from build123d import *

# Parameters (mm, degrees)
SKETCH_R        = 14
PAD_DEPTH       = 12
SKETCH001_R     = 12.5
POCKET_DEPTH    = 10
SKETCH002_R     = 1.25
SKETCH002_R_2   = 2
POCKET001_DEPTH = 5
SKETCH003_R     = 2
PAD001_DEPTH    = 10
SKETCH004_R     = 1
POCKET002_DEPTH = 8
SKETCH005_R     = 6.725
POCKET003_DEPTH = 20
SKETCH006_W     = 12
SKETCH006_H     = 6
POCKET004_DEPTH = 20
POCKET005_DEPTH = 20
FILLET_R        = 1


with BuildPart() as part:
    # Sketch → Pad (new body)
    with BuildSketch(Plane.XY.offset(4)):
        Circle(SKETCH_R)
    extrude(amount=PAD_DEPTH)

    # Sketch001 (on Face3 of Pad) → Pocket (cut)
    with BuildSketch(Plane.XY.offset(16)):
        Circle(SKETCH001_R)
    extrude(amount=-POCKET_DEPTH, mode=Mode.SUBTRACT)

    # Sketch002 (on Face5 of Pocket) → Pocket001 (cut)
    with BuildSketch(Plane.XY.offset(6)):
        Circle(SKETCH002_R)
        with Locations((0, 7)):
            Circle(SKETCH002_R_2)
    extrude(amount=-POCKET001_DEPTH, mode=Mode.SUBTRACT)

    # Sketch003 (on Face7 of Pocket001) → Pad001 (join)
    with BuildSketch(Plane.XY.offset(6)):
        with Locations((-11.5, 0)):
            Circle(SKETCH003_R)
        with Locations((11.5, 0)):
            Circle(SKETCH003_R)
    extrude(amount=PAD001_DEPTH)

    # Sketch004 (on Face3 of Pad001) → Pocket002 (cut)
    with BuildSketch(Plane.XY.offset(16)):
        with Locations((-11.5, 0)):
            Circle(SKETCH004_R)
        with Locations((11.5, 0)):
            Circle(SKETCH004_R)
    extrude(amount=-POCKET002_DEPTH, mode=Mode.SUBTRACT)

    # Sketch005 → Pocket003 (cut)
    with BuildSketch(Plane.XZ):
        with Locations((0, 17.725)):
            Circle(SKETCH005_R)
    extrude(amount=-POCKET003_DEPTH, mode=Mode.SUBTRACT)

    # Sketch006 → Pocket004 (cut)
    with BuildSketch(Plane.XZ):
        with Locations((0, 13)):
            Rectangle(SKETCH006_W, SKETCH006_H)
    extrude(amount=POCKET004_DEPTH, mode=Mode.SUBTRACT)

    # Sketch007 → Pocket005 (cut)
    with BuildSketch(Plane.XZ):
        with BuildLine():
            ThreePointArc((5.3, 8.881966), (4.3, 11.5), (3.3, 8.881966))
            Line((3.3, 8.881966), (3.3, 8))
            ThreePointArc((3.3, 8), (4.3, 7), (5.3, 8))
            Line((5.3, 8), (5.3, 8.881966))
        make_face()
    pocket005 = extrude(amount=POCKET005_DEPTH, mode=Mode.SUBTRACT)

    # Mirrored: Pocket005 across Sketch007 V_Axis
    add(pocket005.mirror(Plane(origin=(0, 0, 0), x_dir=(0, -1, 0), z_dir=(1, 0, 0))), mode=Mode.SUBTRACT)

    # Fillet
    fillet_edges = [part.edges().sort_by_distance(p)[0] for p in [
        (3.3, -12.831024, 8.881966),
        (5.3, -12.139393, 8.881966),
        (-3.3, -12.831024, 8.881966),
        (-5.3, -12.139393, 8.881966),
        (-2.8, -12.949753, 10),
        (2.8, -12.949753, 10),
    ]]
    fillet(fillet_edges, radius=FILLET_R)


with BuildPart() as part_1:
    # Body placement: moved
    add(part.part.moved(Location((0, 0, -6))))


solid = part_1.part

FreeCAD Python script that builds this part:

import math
import FreeCAD as App
import Part
import Sketcher


def edges_at(feature, points):
    """Names of the edges that pass closest to the given points."""
    edges = feature.Shape.Edges
    near = lambda p: min(range(len(edges)), key=lambda i: edges[i].distToShape(Part.Vertex(*p))[0])
    return sorted({f"Edge{near(p) + 1}" for p in points})

doc = App.newDocument("Part")
body = doc.addObject("PartDesign::Body", "Body")

sketch1 = body.newObject("Sketcher::SketchObject", "Sketch")
sketch1.AttachmentSupport = (doc.getObject("XY_Plane"), [""])
sketch1.MapMode = "FlatFace"
sketch1.AttachmentOffset = App.Placement(App.Vector(0, 0, 4), App.Rotation())
sketch1.addGeometry(Part.Circle(App.Vector(0, 0, 0), App.Vector(0, 0, 1), 14), False)
sketch1.addConstraint(Sketcher.Constraint("Coincident", 0, 3, -1, 1))
sketch1.addConstraint(Sketcher.Constraint("Diameter", 0, 28.0))
pad1 = body.newObject("PartDesign::Pad", "Pad")
pad1.Profile = sketch1
pad1.Length = 12

sketch2 = body.newObject("Sketcher::SketchObject", "Sketch001")
sketch2.AttachmentSupport = (doc.getObject("XY_Plane"), [""])
sketch2.MapMode = "FlatFace"
sketch2.AttachmentOffset = App.Placement(App.Vector(0, 0, 16), App.Rotation())
sketch2.addGeometry(Part.Circle(App.Vector(0, 0, 0), App.Vector(0, 0, 1), 12.5), False)
sketch2.addConstraint(Sketcher.Constraint("Coincident", 0, 3, -1, 1))
sketch2.addConstraint(Sketcher.Constraint("Diameter", 0, 25.0))
pocket1 = body.newObject("PartDesign::Pocket", "Pocket")
pocket1.Profile = sketch2
pocket1.Length = 10

sketch3 = body.newObject("Sketcher::SketchObject", "Sketch002")
sketch3.AttachmentSupport = (doc.getObject("XY_Plane"), [""])
sketch3.MapMode = "FlatFace"
sketch3.AttachmentOffset = App.Placement(App.Vector(0, 0, 6), App.Rotation())
sketch3.addGeometry(Part.Circle(App.Vector(0, 0, 0), App.Vector(0, 0, 1), 1.25), False)
sketch3.addGeometry(Part.Circle(App.Vector(0, 7, 0), App.Vector(0, 0, 1), 2), False)
sketch3.addConstraint(Sketcher.Constraint("Coincident", 0, 3, -1, 1))
sketch3.addConstraint(Sketcher.Constraint("PointOnObject", 1, 3, -2))
sketch3.addConstraint(Sketcher.Constraint("Diameter", 1, 4.0))
sketch3.addConstraint(Sketcher.Constraint("Diameter", 0, 2.5))
sketch3.addConstraint(Sketcher.Constraint("DistanceY", -1, 1, 1, 3, 7.0))
pocket2 = body.newObject("PartDesign::Pocket", "Pocket001")
pocket2.Profile = sketch3
pocket2.Length = 5

sketch4 = body.newObject("Sketcher::SketchObject", "Sketch003")
sketch4.AttachmentSupport = (doc.getObject("XY_Plane"), [""])
sketch4.MapMode = "FlatFace"
sketch4.AttachmentOffset = App.Placement(App.Vector(0, 0, 6), App.Rotation())
sketch4.addGeometry(Part.Circle(App.Vector(-11.5, 0, 0), App.Vector(0, 0, 1), 2), False)
sketch4.addGeometry(Part.Circle(App.Vector(11.5, 0, 0), App.Vector(0, 0, 1), 2), False)
sketch4.addConstraint(Sketcher.Constraint("Equal", 0, 1))
sketch4.addConstraint(Sketcher.Constraint("Symmetric", 0, 3, 1, 3, -1, 1))
sketch4.addConstraint(Sketcher.Constraint("PointOnObject", 0, 3, -1))
sketch4.addConstraint(Sketcher.Constraint("Diameter", 0, 4.0))
sketch4.addConstraint(Sketcher.Constraint("DistanceX", 0, 3, 1, 3, 23.0))
pad2 = body.newObject("PartDesign::Pad", "Pad001")
pad2.Profile = sketch4
pad2.Length = 10

sketch5 = body.newObject("Sketcher::SketchObject", "Sketch004")
sketch5.AttachmentSupport = (doc.getObject("XY_Plane"), [""])
sketch5.MapMode = "FlatFace"
sketch5.AttachmentOffset = App.Placement(App.Vector(0, 0, 16), App.Rotation())
sketch5.addGeometry(Part.Circle(App.Vector(-11.5, 0, 0), App.Vector(0, 0, 1), 1), False)
sketch5.addGeometry(Part.Circle(App.Vector(11.5, 0, 0), App.Vector(0, 0, 1), 1), False)
sketch5.addConstraint(Sketcher.Constraint("Equal", 0, 1))
sketch5.addConstraint(Sketcher.Constraint("Symmetric", 0, 3, 1, 3, -1, 1))
sketch5.addConstraint(Sketcher.Constraint("PointOnObject", 0, 3, -1))
sketch5.addConstraint(Sketcher.Constraint("Diameter", 0, 2.0))
sketch5.addConstraint(Sketcher.Constraint("DistanceX", 0, 3, 1, 3, 23.0))
pocket3 = body.newObject("PartDesign::Pocket", "Pocket002")
pocket3.Profile = sketch5
pocket3.Length = 8

sketch6 = body.newObject("Sketcher::SketchObject", "Sketch005")
sketch6.AttachmentSupport = (doc.getObject("XZ_Plane"), [""])
sketch6.MapMode = "FlatFace"
sketch6.addGeometry(Part.Circle(App.Vector(0, 17.725, 0), App.Vector(0, 0, 1), 6.725), False)
sketch6.addConstraint(Sketcher.Constraint("PointOnObject", 0, 3, -2))
sketch6.addConstraint(Sketcher.Constraint("Diameter", 0, 13.45))
sketch6.addConstraint(Sketcher.Constraint("DistanceY", -1, 1, 0, 3, 17.725))
pocket4 = body.newObject("PartDesign::Pocket", "Pocket003")
pocket4.Profile = sketch6
pocket4.Length = 20

sketch7 = body.newObject("Sketcher::SketchObject", "Sketch006")
sketch7.AttachmentSupport = (doc.getObject("XZ_Plane"), [""])
sketch7.MapMode = "FlatFace"
sketch7.addGeometry(Part.LineSegment(App.Vector(-6, 16, 0), App.Vector(-6, 10, 0)), False)
sketch7.addGeometry(Part.LineSegment(App.Vector(-6, 10, 0), App.Vector(6, 10, 0)), False)
sketch7.addGeometry(Part.LineSegment(App.Vector(6, 10, 0), App.Vector(6, 16, 0)), False)
sketch7.addGeometry(Part.LineSegment(App.Vector(6, 16, 0), App.Vector(-6, 16, 0)), False)
sketch7.addConstraint(Sketcher.Constraint("Coincident", 0, 2, 1, 1))
sketch7.addConstraint(Sketcher.Constraint("Coincident", 1, 2, 2, 1))
sketch7.addConstraint(Sketcher.Constraint("Coincident", 2, 2, 3, 1))
sketch7.addConstraint(Sketcher.Constraint("Coincident", 3, 2, 0, 1))
sketch7.addConstraint(Sketcher.Constraint("Vertical", 0))
sketch7.addConstraint(Sketcher.Constraint("Horizontal", 1))
sketch7.addConstraint(Sketcher.Constraint("Vertical", 2))
sketch7.addConstraint(Sketcher.Constraint("Horizontal", 3))
sketch7.addConstraint(Sketcher.Constraint("DistanceX", 1, 1, 1, 2, 12.0))
sketch7.addConstraint(Sketcher.Constraint("DistanceY", 0, 2, 0, 1, 6.0))
sketch7.addConstraint(Sketcher.Constraint("DistanceX", 0, 2, -1, 1, 6.0))
sketch7.addConstraint(Sketcher.Constraint("DistanceY", -1, 1, 0, 2, 10.0))
pocket5 = body.newObject("PartDesign::Pocket", "Pocket004")
pocket5.Profile = sketch7
pocket5.Length = 20
pocket5.Reversed = True

sketch8 = body.newObject("Sketcher::SketchObject", "Sketch007")
sketch8.AttachmentSupport = (doc.getObject("XZ_Plane"), [""])
sketch8.MapMode = "FlatFace"
sketch8.addGeometry(Part.ArcOfCircle(Part.Circle(App.Vector(4.3, 10, 0), App.Vector(0, 0, 1), 1.5), math.radians(-48.189685), math.radians(228.189685)), False)
sketch8.addGeometry(Part.LineSegment(App.Vector(3.3, 8.881966, 0), App.Vector(3.3, 8, 0)), False)
sketch8.addGeometry(Part.ArcOfCircle(Part.Circle(App.Vector(4.3, 8, 0), App.Vector(0, 0, 1), 1), math.radians(180), math.radians(360)), False)
sketch8.addGeometry(Part.LineSegment(App.Vector(5.3, 8, 0), App.Vector(5.3, 8.881966, 0)), False)
sketch8.addConstraint(Sketcher.Constraint("Coincident", 0, 2, 1, 1))
sketch8.addConstraint(Sketcher.Constraint("Tangent", 1, 2, 2, 1))
sketch8.addConstraint(Sketcher.Constraint("Tangent", 2, 2, 3, 1))
sketch8.addConstraint(Sketcher.Constraint("Coincident", 3, 2, 0, 1))
sketch8.addConstraint(Sketcher.Constraint("Vertical", 1))
sketch8.addConstraint(Sketcher.Constraint("Vertical", 3))
sketch8.addConstraint(Sketcher.Constraint("Horizontal", 0, 2, 3, 2))
sketch8.addConstraint(Sketcher.Constraint("Radius", 2, 1.0))
sketch8.addConstraint(Sketcher.Constraint("Radius", 0, 1.5))
sketch8.addConstraint(Sketcher.Constraint("DistanceY", -1, 1, 0, 3, 10.0))
sketch8.addConstraint(Sketcher.Constraint("DistanceY", -1, 1, 2, 3, 8.0))
sketch8.addConstraint(Sketcher.Constraint("DistanceX", -1, 1, 0, 3, 4.3))
pocket6 = body.newObject("PartDesign::Pocket", "Pocket005")
pocket6.Profile = sketch8
pocket6.Length = 20
pocket6.Reversed = True
doc.recompute()

mirrored = body.newObject("PartDesign::Mirrored", "Mirrored")
mirrored.Originals = [pocket6]
mirrored.MirrorPlane = (doc.getObject("YZ_Plane"), [""])
body.Tip = mirrored
doc.recompute()

fillet = body.newObject("PartDesign::Fillet", "Fillet")
fillet.Base = (mirrored, edges_at(mirrored, [
    (3.3, -12.831, 8.882),
    (5.3, -12.139, 8.882),
    (-3.3, -12.831, 8.882),
    (-5.3, -12.139, 8.882),
    (-2.8, -12.95, 10),
    (2.8, -12.95, 10),
]))
fillet.Radius = 1
body2 = doc.addObject("PartDesign::Body", "Body001")
doc.recompute()

body.Placement = App.Placement(App.Vector(0, 0, -6), App.Rotation(App.Vector(0, 0, 1), 0))
boolean = body2.newObject("PartDesign::Boolean", "Boolean")
boolean.Type = "Fuse"
boolean.addObjects([body])

doc.recompute()
